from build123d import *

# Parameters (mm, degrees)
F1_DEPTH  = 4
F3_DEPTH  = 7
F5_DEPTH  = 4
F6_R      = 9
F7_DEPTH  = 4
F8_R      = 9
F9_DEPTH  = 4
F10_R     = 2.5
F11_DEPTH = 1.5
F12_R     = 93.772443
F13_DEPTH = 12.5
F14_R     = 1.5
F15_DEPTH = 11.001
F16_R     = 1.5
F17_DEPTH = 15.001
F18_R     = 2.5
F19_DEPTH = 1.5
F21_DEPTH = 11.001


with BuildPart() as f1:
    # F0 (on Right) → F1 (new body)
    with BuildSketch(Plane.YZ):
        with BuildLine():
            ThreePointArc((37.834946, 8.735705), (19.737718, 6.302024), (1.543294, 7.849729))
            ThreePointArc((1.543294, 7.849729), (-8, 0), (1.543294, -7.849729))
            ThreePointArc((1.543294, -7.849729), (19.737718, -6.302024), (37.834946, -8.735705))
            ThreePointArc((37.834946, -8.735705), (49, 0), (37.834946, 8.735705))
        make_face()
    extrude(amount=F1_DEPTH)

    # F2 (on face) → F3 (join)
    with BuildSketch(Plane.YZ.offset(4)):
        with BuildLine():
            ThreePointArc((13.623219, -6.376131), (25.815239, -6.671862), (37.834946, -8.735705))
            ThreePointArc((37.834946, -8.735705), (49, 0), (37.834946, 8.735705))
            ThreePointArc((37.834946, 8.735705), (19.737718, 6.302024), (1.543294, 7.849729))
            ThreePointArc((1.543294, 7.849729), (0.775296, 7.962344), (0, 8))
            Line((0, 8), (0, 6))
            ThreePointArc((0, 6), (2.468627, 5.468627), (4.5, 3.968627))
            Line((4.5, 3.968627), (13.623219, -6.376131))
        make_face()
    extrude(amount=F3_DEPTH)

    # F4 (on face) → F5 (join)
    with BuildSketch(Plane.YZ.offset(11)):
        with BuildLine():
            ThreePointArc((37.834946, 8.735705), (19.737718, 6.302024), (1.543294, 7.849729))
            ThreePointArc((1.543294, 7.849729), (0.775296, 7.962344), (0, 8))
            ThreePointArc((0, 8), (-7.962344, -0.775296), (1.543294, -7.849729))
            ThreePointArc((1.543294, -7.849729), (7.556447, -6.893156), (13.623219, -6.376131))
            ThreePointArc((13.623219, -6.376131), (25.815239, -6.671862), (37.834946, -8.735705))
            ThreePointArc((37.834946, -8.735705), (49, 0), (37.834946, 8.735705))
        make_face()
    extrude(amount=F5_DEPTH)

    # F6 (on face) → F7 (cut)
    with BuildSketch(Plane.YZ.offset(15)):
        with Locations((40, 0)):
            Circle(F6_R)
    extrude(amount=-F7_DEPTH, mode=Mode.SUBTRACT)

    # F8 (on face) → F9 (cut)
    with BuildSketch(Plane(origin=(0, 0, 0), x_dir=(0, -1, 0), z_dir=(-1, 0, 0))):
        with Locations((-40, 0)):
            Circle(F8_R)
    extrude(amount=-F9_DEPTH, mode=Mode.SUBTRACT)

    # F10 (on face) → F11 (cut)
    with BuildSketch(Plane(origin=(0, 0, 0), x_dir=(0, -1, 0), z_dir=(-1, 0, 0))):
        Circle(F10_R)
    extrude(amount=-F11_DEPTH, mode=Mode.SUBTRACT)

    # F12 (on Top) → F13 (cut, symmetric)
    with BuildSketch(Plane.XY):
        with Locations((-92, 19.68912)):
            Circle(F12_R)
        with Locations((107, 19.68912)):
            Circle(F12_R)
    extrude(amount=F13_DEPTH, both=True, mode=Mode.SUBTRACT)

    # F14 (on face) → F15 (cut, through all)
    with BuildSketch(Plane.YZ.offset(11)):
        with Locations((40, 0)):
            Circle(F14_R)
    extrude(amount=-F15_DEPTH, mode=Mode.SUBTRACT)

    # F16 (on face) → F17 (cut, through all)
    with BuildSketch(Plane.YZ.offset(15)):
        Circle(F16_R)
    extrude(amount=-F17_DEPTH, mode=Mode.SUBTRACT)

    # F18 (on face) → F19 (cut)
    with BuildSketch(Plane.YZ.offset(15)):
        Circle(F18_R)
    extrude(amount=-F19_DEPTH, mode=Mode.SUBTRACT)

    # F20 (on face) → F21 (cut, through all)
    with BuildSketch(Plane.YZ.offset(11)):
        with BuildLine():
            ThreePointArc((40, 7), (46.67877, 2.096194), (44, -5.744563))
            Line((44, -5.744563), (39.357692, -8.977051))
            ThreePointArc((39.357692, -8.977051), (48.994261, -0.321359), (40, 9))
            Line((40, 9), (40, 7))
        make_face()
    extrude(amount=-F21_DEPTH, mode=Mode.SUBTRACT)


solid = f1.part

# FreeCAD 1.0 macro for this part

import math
import FreeCAD as App
import Part
import Sketcher

doc = App.newDocument("Part")
body = doc.addObject("PartDesign::Body", "Body")

sketch1 = body.newObject("Sketcher::SketchObject", "Sketch")
sketch1.AttachmentSupport = (doc.getObject("YZ_Plane"), [""])
sketch1.MapMode = "FlatFace"
sketch1.addGeometry([
    Part.ArcOfCircle(Part.Circle(App.Vector(18, 90, 0), App.Vector(0, 0, 1), 84), math.radians(-101), math.radians(-76)),
    Part.ArcOfCircle(Part.Circle(App.Vector(0, 0, 0), App.Vector(0, 0, 1), 8), math.radians(79), math.radians(281)),
    Part.ArcOfCircle(Part.Circle(App.Vector(18, -90, 0), App.Vector(0, 0, 1), 84), math.radians(76), math.radians(101)),
    Part.ArcOfCircle(Part.Circle(App.Vector(40, 0, 0), App.Vector(0, 0, 1), 9), math.radians(-104), math.radians(104)),
], False)
sketch1.addConstraint([
    Sketcher.Constraint("Tangent", 0, 1, 1, 1),
    Sketcher.Constraint("Tangent", 1, 2, 2, 2),
    Sketcher.Constraint("Tangent", 2, 1, 3, 1),
    Sketcher.Constraint("Tangent", 3, 2, 0, 2),
    Sketcher.Constraint("Coincident", 1, 3, -1, 1),
    Sketcher.Constraint("Equal", 0, 2),
    Sketcher.Constraint("PointOnObject", 3, 3, -1),
    Sketcher.Constraint("Radius", 1, 8.0),
    Sketcher.Constraint("Radius", 3, 9.0),
    Sketcher.Constraint("DistanceX", -1, 1, 3, 3, 40.0),
    Sketcher.Constraint("Radius", 0, 83.722891),
])
pad1 = body.newObject("PartDesign::Pad", "Pad")
pad1.Profile = sketch1
pad1.Length = 4

sketch2 = body.newObject("Sketcher::SketchObject", "Sketch001")
sketch2.AttachmentSupport = (doc.getObject("YZ_Plane"), [""])
sketch2.MapMode = "FlatFace"
sketch2.AttachmentOffset = App.Placement(App.Vector(0, 0, 4), App.Rotation())
sketch2.addGeometry([
    Part.ArcOfCircle(Part.Circle(App.Vector(17.7, -90, 0), App.Vector(0, 0, 1), 83.7), math.radians(76.08), math.radians(92.79)),
    Part.ArcOfCircle(Part.Circle(App.Vector(40, 0, 0), App.Vector(0, 0, 1), 9), math.radians(-104), math.radians(104)),
    Part.ArcOfCircle(Part.Circle(App.Vector(17.7, 90, 0), App.Vector(0, 0, 1), 83.7), math.radians(-101), math.radians(-76)),
    Part.ArcOfCircle(Part.Circle(App.Vector(0, 0, 0), App.Vector(0, 0, 1), 8), math.radians(78.88), math.radians(90)),
    Part.LineSegment(App.Vector(0, 8, 0), App.Vector(0, 6, 0)),
    Part.ArcOfCircle(Part.Circle(App.Vector(0, 0, 0), App.Vector(0, 0, 1), 6), math.radians(41), math.radians(90)),
    Part.LineSegment(App.Vector(4.5, 4, 0), App.Vector(13.6, -6.4, 0)),
], False)
sketch2.addConstraint([
    Sketcher.Constraint("Tangent", 0, 1, 1, 1),
    Sketcher.Constraint("Tangent", 1, 2, 2, 2),
    Sketcher.Constraint("Tangent", 2, 1, 3, 1),
    Sketcher.Constraint("Coincident", 3, 2, 4, 1),
    Sketcher.Constraint("Coincident", 4, 2, 5, 2),
    Sketcher.Constraint("Tangent", 5, 1, 6, 1),
    Sketcher.Constraint("Coincident", 6, 2, 0, 2),
    Sketcher.Constraint("Vertical", 4),
    Sketcher.Constraint("Coincident", 5, 3, -1, 1),
    Sketcher.Constraint("PointOnObject", 1, 3, -1),
    Sketcher.Constraint("PointOnObject", 3, 2, -2),
    Sketcher.Constraint("Radius", 1, 9.0),
    Sketcher.Constraint("Radius", 5, 6.0),
    Sketcher.Constraint("DistanceY", 4, 2, 4, 1, 2.0),
    Sketcher.Constraint("DistanceX", -1, 1, 1, 3, 40.0),
    Sketcher.Constraint("DistanceX", -1, 1, 5, 1, 4.5),
    Sketcher.Constraint("Radius", 2, 83.722891),
    Sketcher.Constraint("Radius", 0, 83.722915),
    Sketcher.Constraint("Radius", 3, 7.999934),
    Sketcher.Constraint("Distance", 6, 13.793011),
    Sketcher.Constraint("DistanceY", 0, 3, 2, 3, 179.99998),
])
pad2 = body.newObject("PartDesign::Pad", "Pad001")
pad2.Profile = sketch2
pad2.Length = 7

sketch3 = body.newObject("Sketcher::SketchObject", "Sketch002")
sketch3.AttachmentSupport = (doc.getObject("YZ_Plane"), [""])
sketch3.MapMode = "FlatFace"
sketch3.AttachmentOffset = App.Placement(App.Vector(0, 0, 11), App.Rotation())
sketch3.addGeometry([
    Part.ArcOfCircle(Part.Circle(App.Vector(17.7, 90, 0), App.Vector(0, 0, 1), 83.7), math.radians(-101), math.radians(-76)),
    Part.ArcOfCircle(Part.Circle(App.Vector(0, 0, 0), App.Vector(0, 0, 1), 8), math.radians(78.88), math.radians(90)),
    Part.ArcOfCircle(Part.Circle(App.Vector(0, 0, 0), App.Vector(0, 0, 1), 8), math.radians(90), math.radians(281)),
    Part.ArcOfCircle(Part.Circle(App.Vector(17.7, -90, 0), App.Vector(0, 0, 1), 83.7), math.radians(92.79), math.radians(101.12)),
    Part.ArcOfCircle(Part.Circle(App.Vector(17.7, -90, 0), App.Vector(0, 0, 1), 83.7), math.radians(76.08), math.radians(92.79)),
    Part.ArcOfCircle(Part.Circle(App.Vector(40, 0, 0), App.Vector(0, 0, 1), 9), math.radians(-104), math.radians(104)),
], False)
sketch3.addConstraint([
    Sketcher.Constraint("Tangent", 0, 1, 1, 1),
    Sketcher.Constraint("Tangent", 1, 2, 2, 1),
    Sketcher.Constraint("Tangent", 2, 2, 3, 2),
    Sketcher.Constraint("Tangent", 3, 1, 4, 2),
    Sketcher.Constraint("Tangent", 4, 1, 5, 1),
    Sketcher.Constraint("Tangent", 5, 2, 0, 2),
    Sketcher.Constraint("Coincident", 2, 3, -1, 1),
    Sketcher.Constraint("PointOnObject", 5, 3, -1),
    Sketcher.Constraint("PointOnObject", 1, 2, -2),
    Sketcher.Constraint("Radius", 2, 8.0),
    Sketcher.Constraint("Radius", 5, 9.0),
    Sketcher.Constraint("DistanceX", -1, 1, 5, 3, 40.0),
    Sketcher.Constraint("Radius", 0, 83.722891),
    Sketcher.Constraint("Radius", 3, 83.722921),
    Sketcher.Constraint("Radius", 1, 7.999934),
    Sketcher.Constraint("Radius", 4, 83.722915),
    Sketcher.Constraint("DistanceX", -1, 1, 3, 1, 13.623219),
])
pad3 = body.newObject("PartDesign::Pad", "Pad002")
pad3.Profile = sketch3
pad3.Length = 4

sketch4 = body.newObject("Sketcher::SketchObject", "Sketch003")
sketch4.AttachmentSupport = (doc.getObject("YZ_Plane"), [""])
sketch4.MapMode = "FlatFace"
sketch4.AttachmentOffset = App.Placement(App.Vector(0, 0, 15), App.Rotation())
sketch4.addGeometry(Part.Circle(App.Vector(40, 0, 0), App.Vector(0, 0, 1), 9), False)
sketch4.addConstraint([
    Sketcher.Constraint("PointOnObject", 0, 3, -1),
    Sketcher.Constraint("Diameter", 0, 18.0),
    Sketcher.Constraint("DistanceX", -1, 1, 0, 3, 40.0),
])
pocket1 = body.newObject("PartDesign::Pocket", "Pocket")
pocket1.Profile = sketch4
pocket1.Length = 4

sketch5 = body.newObject("Sketcher::SketchObject", "Sketch004")
sketch5.AttachmentSupport = (doc.getObject("YZ_Plane"), [""])
sketch5.MapMode = "FlatFace"
sketch5.addGeometry(Part.Circle(App.Vector(40, 0, 0), App.Vector(0, 0, 1), 9), False)
sketch5.addConstraint([
    Sketcher.Constraint("PointOnObject", 0, 3, -1),
    Sketcher.Constraint("Diameter", 0, 18.0),
    Sketcher.Constraint("DistanceX", -1, 1, 0, 3, 40.0),
])
pocket2 = body.newObject("PartDesign::Pocket", "Pocket001")
pocket2.Profile = sketch5
pocket2.Length = 4
pocket2.Reversed = True

sketch6 = body.newObject("Sketcher::SketchObject", "Sketch005")
sketch6.AttachmentSupport = (doc.getObject("YZ_Plane"), [""])
sketch6.MapMode = "FlatFace"
sketch6.addGeometry(Part.Circle(App.Vector(0, 0, 0), App.Vector(0, 0, 1), 2.5), False)
sketch6.addConstraint([
    Sketcher.Constraint("Coincident", 0, 3, -1, 1),
    Sketcher.Constraint("Diameter", 0, 5.0),
])
pocket3 = body.newObject("PartDesign::Pocket", "Pocket002")
pocket3.Profile = sketch6
pocket3.Length = 1.5
pocket3.Reversed = True

sketch7 = body.newObject("Sketcher::SketchObject", "Sketch006")
sketch7.AttachmentSupport = (doc.getObject("XY_Plane"), [""])
sketch7.MapMode = "FlatFace"
sketch7.addGeometry([
    Part.Circle(App.Vector(-92, 20, 0), App.Vector(0, 0, 1), 94),
    Part.Circle(App.Vector(107, 20, 0), App.Vector(0, 0, 1), 94),
], False)
sketch7.addConstraint([
    Sketcher.Constraint("Equal", 0, 1),
    Sketcher.Constraint("Horizontal", 0, 3, 1, 3),
    Sketcher.Constraint("DistanceX", 0, 3, -1, 1, 92.0),
    Sketcher.Constraint("DistanceX", -1, 1, 1, 3, 107.0),
    Sketcher.Constraint("Diameter", 0, 187.544886),
    Sketcher.Constraint("DistanceY", -1, 1, 0, 3, 19.68912),
])
pocket4 = body.newObject("PartDesign::Pocket", "Pocket003")
pocket4.Profile = sketch7
pocket4.Length = 25
pocket4.Midplane = True

sketch8 = body.newObject("Sketcher::SketchObject", "Sketch007")
sketch8.AttachmentSupport = (doc.getObject("YZ_Plane"), [""])
sketch8.MapMode = "FlatFace"
sketch8.AttachmentOffset = App.Placement(App.Vector(0, 0, 11), App.Rotation())
sketch8.addGeometry(Part.Circle(App.Vector(40, 0, 0), App.Vector(0, 0, 1), 1.5), False)
sketch8.addConstraint([
    Sketcher.Constraint("PointOnObject", 0, 3, -1),
    Sketcher.Constraint("Diameter", 0, 3.0),
    Sketcher.Constraint("DistanceX", -1, 1, 0, 3, 40.0),
])
pocket5 = body.newObject("PartDesign::Pocket", "Pocket004")
pocket5.Profile = sketch8
pocket5.Type = "ThroughAll"

sketch9 = body.newObject("Sketcher::SketchObject", "Sketch008")
sketch9.AttachmentSupport = (doc.getObject("YZ_Plane"), [""])
sketch9.MapMode = "FlatFace"
sketch9.AttachmentOffset = App.Placement(App.Vector(0, 0, 15), App.Rotation())
sketch9.addGeometry(Part.Circle(App.Vector(0, 0, 0), App.Vector(0, 0, 1), 1.5), False)
sketch9.addConstraint([
    Sketcher.Constraint("Coincident", 0, 3, -1, 1),
    Sketcher.Constraint("Diameter", 0, 3.0),
])
pocket6 = body.newObject("PartDesign::Pocket", "Pocket005")
pocket6.Profile = sketch9
pocket6.Type = "ThroughAll"

sketch10 = body.newObject("Sketcher::SketchObject", "Sketch009")
sketch10.AttachmentSupport = (doc.getObject("YZ_Plane"), [""])
sketch10.MapMode = "FlatFace"
sketch10.AttachmentOffset = App.Placement(App.Vector(0, 0, 15), App.Rotation())
sketch10.addGeometry(Part.Circle(App.Vector(0, 0, 0), App.Vector(0, 0, 1), 2.5), False)
sketch10.addConstraint([
    Sketcher.Constraint("Coincident", 0, 3, -1, 1),
    Sketcher.Constraint("Diameter", 0, 5.0),
])
pocket7 = body.newObject("PartDesign::Pocket", "Pocket006")
pocket7.Profile = sketch10
pocket7.Length = 1.5

sketch11 = body.newObject("Sketcher::SketchObject", "Sketch010")
sketch11.AttachmentSupport = (doc.getObject("YZ_Plane"), [""])
sketch11.MapMode = "FlatFace"
sketch11.AttachmentOffset = App.Placement(App.Vector(0, 0, 11), App.Rotation())
sketch11.addGeometry([
    Part.ArcOfCircle(Part.Circle(App.Vector(40, 0, 0), App.Vector(0, 0, 1), 7), math.radians(-55), math.radians(90)),
    Part.LineSegment(App.Vector(44, -5.7, 0), App.Vector(39.4, -9, 0)),
    Part.ArcOfCircle(Part.Circle(App.Vector(40, 0, 0), App.Vector(0, 0, 1), 9), math.radians(-94), math.radians(90)),
    Part.LineSegment(App.Vector(40, 9, 0), App.Vector(40, 7, 0)),
], False)
sketch11.addConstraint([
    Sketcher.Constraint("Tangent", 0, 1, 1, 1),
    Sketcher.Constraint("Coincident", 1, 2, 2, 1),
    Sketcher.Constraint("Coincident", 2, 2, 3, 1),
    Sketcher.Constraint("Coincident", 3, 2, 0, 2),
    Sketcher.Constraint("Vertical", 3),
    Sketcher.Constraint("Coincident", 2, 3, 0, 3),
    Sketcher.Constraint("PointOnObject", 0, 3, -1),
    Sketcher.Constraint("Vertical", 0, 3, 2, 2),
    Sketcher.Constraint("Radius", 0, 7.0),
    Sketcher.Constraint("Radius", 2, 9.0),
    Sketcher.Constraint("DistanceX", -1, 1, 0, 3, 40.0),
    Sketcher.Constraint("DistanceX", -1, 1, 0, 1, 44.0),
])
pocket8 = body.newObject("PartDesign::Pocket", "Pocket007")
pocket8.Profile = sketch11
pocket8.Type = "ThroughAll"

doc.recompute()
